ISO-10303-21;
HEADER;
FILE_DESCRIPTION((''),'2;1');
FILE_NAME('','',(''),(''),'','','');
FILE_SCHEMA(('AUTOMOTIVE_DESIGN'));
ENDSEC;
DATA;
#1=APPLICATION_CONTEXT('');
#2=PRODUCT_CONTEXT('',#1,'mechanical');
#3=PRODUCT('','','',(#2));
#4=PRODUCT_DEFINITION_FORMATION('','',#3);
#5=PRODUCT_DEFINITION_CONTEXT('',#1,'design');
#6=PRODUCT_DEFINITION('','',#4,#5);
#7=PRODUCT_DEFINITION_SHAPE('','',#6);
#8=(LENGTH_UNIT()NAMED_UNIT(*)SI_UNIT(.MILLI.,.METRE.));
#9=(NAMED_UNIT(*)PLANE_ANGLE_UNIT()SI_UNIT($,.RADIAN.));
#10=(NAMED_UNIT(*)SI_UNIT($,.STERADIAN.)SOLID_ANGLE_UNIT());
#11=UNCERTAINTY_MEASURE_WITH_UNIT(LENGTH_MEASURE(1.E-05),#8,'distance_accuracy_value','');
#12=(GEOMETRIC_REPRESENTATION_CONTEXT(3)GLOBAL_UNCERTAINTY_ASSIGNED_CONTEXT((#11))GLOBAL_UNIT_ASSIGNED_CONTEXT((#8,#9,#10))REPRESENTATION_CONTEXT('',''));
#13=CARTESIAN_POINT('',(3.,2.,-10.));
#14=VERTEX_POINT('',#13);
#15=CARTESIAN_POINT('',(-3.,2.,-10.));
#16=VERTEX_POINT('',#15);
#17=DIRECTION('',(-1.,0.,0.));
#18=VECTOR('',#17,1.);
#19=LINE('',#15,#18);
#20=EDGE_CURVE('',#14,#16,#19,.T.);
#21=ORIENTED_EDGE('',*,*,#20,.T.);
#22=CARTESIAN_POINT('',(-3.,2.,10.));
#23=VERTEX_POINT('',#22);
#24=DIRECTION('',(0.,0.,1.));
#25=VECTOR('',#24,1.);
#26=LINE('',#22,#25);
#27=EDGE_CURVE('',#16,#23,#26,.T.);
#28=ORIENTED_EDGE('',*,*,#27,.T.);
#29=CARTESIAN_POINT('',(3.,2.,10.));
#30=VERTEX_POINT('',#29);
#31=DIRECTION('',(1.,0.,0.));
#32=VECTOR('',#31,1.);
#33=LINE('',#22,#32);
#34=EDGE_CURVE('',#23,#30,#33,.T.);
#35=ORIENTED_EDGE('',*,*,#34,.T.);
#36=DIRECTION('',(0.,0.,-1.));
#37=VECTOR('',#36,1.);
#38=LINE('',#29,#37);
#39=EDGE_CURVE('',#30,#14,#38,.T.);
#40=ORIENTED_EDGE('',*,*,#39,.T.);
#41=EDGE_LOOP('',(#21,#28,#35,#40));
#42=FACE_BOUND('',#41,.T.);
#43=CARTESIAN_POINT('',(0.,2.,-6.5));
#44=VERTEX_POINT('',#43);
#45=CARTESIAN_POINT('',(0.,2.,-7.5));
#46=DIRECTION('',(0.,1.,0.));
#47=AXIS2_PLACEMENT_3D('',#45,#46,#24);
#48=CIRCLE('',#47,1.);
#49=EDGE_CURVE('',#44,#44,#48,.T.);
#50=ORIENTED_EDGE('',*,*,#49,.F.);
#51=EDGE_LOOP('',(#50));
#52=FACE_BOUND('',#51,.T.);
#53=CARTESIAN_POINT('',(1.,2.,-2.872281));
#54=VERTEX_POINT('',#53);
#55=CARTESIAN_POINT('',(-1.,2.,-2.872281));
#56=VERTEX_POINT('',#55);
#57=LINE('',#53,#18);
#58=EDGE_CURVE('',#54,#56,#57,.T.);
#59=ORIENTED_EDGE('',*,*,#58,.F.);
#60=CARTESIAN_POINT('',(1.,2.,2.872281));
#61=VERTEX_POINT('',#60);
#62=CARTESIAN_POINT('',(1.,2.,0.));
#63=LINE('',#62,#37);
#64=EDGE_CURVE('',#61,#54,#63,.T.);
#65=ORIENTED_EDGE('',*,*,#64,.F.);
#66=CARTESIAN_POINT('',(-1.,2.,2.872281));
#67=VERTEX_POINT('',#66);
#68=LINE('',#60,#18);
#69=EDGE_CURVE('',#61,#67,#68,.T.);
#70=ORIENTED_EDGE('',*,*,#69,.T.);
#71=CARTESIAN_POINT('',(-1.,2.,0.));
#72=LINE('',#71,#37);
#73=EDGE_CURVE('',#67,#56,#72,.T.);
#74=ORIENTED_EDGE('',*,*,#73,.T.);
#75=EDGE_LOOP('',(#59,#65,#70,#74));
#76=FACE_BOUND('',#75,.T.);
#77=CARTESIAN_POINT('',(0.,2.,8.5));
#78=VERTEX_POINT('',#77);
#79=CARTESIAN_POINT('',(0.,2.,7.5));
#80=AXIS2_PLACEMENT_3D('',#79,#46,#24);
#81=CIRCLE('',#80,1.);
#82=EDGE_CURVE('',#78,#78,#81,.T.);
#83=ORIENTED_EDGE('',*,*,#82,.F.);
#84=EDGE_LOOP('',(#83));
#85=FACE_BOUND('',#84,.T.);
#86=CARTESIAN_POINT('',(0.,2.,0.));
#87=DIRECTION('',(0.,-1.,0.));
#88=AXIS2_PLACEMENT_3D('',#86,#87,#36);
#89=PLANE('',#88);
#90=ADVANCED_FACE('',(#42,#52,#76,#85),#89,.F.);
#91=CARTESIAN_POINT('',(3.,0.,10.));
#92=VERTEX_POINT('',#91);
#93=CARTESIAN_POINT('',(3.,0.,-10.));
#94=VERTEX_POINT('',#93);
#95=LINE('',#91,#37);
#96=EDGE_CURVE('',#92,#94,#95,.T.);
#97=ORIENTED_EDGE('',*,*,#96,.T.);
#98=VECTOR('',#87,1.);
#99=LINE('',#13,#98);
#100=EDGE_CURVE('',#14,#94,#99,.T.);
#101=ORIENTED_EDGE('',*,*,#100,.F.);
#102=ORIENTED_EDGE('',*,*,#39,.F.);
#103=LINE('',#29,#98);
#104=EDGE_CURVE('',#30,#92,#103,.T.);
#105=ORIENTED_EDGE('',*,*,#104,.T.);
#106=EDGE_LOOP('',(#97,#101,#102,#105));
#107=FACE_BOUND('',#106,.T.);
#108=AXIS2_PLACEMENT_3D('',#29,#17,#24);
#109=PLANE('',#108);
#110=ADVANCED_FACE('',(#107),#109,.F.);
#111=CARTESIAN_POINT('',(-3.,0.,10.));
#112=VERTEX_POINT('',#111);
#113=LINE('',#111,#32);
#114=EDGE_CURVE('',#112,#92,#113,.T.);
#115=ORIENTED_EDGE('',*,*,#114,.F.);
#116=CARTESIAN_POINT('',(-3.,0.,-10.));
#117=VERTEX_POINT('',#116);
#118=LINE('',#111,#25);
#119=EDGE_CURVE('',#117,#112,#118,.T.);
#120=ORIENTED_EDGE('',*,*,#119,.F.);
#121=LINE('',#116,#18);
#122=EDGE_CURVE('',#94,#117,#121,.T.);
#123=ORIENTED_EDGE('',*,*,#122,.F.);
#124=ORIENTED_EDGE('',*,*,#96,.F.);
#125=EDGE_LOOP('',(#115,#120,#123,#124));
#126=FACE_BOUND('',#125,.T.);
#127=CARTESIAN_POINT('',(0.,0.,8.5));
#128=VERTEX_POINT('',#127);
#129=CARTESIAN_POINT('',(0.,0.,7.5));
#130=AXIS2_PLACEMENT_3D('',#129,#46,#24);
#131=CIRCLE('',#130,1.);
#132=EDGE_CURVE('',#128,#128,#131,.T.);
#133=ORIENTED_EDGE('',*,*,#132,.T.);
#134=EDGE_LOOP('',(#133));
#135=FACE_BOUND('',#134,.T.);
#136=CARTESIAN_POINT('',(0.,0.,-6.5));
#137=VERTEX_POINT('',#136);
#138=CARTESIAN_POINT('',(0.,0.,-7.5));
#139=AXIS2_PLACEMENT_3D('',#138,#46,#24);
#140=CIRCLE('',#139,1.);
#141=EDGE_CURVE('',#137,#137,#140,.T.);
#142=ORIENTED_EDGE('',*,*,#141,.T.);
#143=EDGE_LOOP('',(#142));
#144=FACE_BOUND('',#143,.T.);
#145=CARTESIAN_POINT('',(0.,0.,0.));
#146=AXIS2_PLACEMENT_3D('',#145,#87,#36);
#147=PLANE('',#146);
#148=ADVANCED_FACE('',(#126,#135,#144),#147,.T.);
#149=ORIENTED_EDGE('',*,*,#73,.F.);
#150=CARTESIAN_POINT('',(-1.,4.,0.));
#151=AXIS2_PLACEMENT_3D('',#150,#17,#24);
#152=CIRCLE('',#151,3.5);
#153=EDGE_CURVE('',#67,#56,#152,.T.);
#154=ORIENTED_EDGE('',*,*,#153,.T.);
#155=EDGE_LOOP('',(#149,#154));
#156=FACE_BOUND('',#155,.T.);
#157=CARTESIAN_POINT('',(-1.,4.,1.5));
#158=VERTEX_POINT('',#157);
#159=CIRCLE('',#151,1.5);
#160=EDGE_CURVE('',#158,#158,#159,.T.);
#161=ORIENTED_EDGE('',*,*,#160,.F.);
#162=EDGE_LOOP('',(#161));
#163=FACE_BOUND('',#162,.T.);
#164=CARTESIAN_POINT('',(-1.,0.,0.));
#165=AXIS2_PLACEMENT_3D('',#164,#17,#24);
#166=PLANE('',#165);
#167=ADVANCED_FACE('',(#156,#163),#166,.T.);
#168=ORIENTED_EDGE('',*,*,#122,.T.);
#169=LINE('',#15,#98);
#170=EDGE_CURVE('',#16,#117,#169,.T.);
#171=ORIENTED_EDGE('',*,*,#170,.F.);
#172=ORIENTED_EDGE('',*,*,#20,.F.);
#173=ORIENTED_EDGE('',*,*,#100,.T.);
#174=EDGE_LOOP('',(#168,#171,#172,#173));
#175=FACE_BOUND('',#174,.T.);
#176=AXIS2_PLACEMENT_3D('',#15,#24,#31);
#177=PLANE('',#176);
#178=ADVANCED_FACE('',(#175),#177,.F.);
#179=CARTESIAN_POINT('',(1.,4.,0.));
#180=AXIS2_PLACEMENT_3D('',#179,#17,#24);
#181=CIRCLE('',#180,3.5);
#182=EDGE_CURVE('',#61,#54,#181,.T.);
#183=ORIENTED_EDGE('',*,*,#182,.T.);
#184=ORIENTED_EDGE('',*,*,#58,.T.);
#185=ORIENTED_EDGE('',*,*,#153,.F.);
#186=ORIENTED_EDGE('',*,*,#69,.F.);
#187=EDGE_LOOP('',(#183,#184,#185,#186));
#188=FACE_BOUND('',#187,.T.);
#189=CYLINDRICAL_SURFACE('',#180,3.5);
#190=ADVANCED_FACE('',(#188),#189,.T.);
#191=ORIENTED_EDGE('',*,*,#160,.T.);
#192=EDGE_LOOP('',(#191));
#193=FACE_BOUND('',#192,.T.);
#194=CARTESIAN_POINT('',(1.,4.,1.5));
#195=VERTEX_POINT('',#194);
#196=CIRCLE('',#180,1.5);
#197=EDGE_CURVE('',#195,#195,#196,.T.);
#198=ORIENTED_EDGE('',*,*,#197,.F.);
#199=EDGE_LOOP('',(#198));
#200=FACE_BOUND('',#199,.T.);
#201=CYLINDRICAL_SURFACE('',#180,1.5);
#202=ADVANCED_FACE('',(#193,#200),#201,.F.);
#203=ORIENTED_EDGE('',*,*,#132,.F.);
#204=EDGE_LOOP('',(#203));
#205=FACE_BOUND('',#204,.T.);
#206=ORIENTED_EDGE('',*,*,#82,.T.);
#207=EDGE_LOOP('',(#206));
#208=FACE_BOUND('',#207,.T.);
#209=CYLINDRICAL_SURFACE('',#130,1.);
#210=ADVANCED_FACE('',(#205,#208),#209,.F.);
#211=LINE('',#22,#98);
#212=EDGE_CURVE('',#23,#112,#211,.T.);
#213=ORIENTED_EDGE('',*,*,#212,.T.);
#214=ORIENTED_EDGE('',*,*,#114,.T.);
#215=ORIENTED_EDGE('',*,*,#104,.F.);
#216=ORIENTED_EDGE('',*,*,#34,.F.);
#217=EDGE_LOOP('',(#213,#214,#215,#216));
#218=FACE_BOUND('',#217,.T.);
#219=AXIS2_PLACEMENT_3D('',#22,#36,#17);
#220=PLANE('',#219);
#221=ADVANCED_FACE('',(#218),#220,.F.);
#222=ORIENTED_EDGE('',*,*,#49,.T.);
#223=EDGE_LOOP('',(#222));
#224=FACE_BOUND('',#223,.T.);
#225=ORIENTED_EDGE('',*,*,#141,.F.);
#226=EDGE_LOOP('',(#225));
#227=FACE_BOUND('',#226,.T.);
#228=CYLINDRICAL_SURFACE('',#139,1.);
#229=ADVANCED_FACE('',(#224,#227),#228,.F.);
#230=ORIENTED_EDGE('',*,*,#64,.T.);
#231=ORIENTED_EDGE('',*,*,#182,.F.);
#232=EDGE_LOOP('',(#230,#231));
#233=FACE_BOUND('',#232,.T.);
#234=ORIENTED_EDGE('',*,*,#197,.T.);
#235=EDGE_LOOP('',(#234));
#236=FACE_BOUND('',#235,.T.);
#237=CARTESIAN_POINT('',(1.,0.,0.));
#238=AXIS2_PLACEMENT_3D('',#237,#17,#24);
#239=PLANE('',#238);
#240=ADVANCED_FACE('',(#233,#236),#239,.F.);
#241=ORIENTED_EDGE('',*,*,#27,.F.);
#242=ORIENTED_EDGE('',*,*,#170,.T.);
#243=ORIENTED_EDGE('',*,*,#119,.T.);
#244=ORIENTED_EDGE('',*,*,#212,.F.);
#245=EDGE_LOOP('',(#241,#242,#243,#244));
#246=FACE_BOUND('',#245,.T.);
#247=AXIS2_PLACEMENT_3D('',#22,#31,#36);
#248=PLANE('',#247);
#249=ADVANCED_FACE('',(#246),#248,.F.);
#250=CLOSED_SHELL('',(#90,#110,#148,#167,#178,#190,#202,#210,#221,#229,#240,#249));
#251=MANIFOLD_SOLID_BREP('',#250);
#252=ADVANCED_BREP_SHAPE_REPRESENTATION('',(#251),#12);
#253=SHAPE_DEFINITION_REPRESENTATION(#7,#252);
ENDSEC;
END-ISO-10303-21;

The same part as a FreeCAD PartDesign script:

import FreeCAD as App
import Part
import Sketcher
from FreeCAD import Vector
Q = App.Units.Quantity


def add_polygon(sketch, points):
    """Adds a closed chain of lines whose ends are joined by coincident constraints."""
    first, n = sketch.GeometryCount, len(points)
    for a, b in zip(points, points[1:] + points[:1]):
        sketch.addGeometry(Part.LineSegment(App.Vector(*a, 0), App.Vector(*b, 0)), False)
    for i in range(n):
        sketch.addConstraint(Sketcher.Constraint("Coincident", first + i, 2, first + (i + 1) % n, 1))

doc = App.newDocument("Part")
body = doc.addObject("PartDesign::Body", "Body")

# Sketch on XZ plane
sketch1 = doc.addObject("Sketcher::SketchObject", "Sketch")
body.addObject(sketch1)
sketch1.AttachmentSupport = (doc.XZ_Plane, [""])
sketch1.MapMode = "FlatFace"
add_polygon(sketch1, [(-3, -10), (-3, 10), (3, 10), (3, -10)])  # lines 0-3
sketch1.addConstraint([
    Sketcher.Constraint("Vertical", 0),
    Sketcher.Constraint("Horizontal", 1),
    Sketcher.Constraint("Vertical", 2),
    Sketcher.Constraint("Horizontal", 3),
    Sketcher.Constraint("Symmetric", 0, 2, 2, 2, -1, 1),
    Sketcher.Constraint("DistanceX", 1, 1, 1, 2, Q("6 mm")),
    Sketcher.Constraint("DistanceY", 0, 1, 0, 2, Q("20 mm")),
])
pad1 = doc.addObject("PartDesign::Pad", "Pad")
body.addObject(pad1)
pad1.Profile = sketch1
pad1.Length = 2
pad1.Reversed = True

# Sketch on YZ plane
sketch2 = doc.addObject("Sketcher::SketchObject", "Sketch001")
body.addObject(sketch2)
sketch2.AttachmentSupport = (doc.YZ_Plane, [""])
sketch2.MapMode = "FlatFace"
sketch2.AttachmentOffset = App.Placement(Vector(0, 0, -1), App.Rotation())
sketch2.addGeometry([
    Part.Circle(Vector(4, 0, 0), Vector(0, 0, 1), 3.5),
    Part.Circle(Vector(4, 0, 0), Vector(0, 0, 1), 1.5),
], False)
sketch2.addConstraint([
    Sketcher.Constraint("Coincident", 1, 3, 0, 3),
    Sketcher.Constraint("PointOnObject", 0, 3, -1),
    Sketcher.Constraint("Diameter", 0, Q("7 mm")),
    Sketcher.Constraint("Diameter", 1, Q("3 mm")),
    Sketcher.Constraint("DistanceX", -1, 1, 0, 3, Q("4 mm")),
])
pad2 = doc.addObject("PartDesign::Pad", "Pad001")
body.addObject(pad2)
pad2.Profile = sketch2
pad2.Length = 2

# Sketch on XZ plane
sketch3 = doc.addObject("Sketcher::SketchObject", "Sketch002")
body.addObject(sketch3)
sketch3.AttachmentSupport = (doc.XZ_Plane, [""])
sketch3.MapMode = "FlatFace"
sketch3.AttachmentOffset = App.Placement(Vector(0, 0, -2), App.Rotation())
sketch3.addGeometry([
    Part.Circle(Vector(0, 7.5, 0), Vector(0, 0, 1), 1),
    Part.Circle(Vector(0, -7.5, 0), Vector(0, 0, 1), 1),
], False)
sketch3.addConstraint([
    Sketcher.Constraint("Equal", 0, 1),
    Sketcher.Constraint("Symmetric", 0, 3, 1, 3, -1, 1),
    Sketcher.Constraint("PointOnObject", 0, 3, -2),
    Sketcher.Constraint("Diameter", 0, Q("2 mm")),
    Sketcher.Constraint("DistanceY", 1, 3, 0, 3, Q("15 mm")),
])
pocket1 = doc.addObject("PartDesign::Pocket", "Pocket")
body.addObject(pocket1)
pocket1.Profile = sketch3
pocket1.Type = "ThroughAll"
pocket1.Reversed = True

doc.recompute()
